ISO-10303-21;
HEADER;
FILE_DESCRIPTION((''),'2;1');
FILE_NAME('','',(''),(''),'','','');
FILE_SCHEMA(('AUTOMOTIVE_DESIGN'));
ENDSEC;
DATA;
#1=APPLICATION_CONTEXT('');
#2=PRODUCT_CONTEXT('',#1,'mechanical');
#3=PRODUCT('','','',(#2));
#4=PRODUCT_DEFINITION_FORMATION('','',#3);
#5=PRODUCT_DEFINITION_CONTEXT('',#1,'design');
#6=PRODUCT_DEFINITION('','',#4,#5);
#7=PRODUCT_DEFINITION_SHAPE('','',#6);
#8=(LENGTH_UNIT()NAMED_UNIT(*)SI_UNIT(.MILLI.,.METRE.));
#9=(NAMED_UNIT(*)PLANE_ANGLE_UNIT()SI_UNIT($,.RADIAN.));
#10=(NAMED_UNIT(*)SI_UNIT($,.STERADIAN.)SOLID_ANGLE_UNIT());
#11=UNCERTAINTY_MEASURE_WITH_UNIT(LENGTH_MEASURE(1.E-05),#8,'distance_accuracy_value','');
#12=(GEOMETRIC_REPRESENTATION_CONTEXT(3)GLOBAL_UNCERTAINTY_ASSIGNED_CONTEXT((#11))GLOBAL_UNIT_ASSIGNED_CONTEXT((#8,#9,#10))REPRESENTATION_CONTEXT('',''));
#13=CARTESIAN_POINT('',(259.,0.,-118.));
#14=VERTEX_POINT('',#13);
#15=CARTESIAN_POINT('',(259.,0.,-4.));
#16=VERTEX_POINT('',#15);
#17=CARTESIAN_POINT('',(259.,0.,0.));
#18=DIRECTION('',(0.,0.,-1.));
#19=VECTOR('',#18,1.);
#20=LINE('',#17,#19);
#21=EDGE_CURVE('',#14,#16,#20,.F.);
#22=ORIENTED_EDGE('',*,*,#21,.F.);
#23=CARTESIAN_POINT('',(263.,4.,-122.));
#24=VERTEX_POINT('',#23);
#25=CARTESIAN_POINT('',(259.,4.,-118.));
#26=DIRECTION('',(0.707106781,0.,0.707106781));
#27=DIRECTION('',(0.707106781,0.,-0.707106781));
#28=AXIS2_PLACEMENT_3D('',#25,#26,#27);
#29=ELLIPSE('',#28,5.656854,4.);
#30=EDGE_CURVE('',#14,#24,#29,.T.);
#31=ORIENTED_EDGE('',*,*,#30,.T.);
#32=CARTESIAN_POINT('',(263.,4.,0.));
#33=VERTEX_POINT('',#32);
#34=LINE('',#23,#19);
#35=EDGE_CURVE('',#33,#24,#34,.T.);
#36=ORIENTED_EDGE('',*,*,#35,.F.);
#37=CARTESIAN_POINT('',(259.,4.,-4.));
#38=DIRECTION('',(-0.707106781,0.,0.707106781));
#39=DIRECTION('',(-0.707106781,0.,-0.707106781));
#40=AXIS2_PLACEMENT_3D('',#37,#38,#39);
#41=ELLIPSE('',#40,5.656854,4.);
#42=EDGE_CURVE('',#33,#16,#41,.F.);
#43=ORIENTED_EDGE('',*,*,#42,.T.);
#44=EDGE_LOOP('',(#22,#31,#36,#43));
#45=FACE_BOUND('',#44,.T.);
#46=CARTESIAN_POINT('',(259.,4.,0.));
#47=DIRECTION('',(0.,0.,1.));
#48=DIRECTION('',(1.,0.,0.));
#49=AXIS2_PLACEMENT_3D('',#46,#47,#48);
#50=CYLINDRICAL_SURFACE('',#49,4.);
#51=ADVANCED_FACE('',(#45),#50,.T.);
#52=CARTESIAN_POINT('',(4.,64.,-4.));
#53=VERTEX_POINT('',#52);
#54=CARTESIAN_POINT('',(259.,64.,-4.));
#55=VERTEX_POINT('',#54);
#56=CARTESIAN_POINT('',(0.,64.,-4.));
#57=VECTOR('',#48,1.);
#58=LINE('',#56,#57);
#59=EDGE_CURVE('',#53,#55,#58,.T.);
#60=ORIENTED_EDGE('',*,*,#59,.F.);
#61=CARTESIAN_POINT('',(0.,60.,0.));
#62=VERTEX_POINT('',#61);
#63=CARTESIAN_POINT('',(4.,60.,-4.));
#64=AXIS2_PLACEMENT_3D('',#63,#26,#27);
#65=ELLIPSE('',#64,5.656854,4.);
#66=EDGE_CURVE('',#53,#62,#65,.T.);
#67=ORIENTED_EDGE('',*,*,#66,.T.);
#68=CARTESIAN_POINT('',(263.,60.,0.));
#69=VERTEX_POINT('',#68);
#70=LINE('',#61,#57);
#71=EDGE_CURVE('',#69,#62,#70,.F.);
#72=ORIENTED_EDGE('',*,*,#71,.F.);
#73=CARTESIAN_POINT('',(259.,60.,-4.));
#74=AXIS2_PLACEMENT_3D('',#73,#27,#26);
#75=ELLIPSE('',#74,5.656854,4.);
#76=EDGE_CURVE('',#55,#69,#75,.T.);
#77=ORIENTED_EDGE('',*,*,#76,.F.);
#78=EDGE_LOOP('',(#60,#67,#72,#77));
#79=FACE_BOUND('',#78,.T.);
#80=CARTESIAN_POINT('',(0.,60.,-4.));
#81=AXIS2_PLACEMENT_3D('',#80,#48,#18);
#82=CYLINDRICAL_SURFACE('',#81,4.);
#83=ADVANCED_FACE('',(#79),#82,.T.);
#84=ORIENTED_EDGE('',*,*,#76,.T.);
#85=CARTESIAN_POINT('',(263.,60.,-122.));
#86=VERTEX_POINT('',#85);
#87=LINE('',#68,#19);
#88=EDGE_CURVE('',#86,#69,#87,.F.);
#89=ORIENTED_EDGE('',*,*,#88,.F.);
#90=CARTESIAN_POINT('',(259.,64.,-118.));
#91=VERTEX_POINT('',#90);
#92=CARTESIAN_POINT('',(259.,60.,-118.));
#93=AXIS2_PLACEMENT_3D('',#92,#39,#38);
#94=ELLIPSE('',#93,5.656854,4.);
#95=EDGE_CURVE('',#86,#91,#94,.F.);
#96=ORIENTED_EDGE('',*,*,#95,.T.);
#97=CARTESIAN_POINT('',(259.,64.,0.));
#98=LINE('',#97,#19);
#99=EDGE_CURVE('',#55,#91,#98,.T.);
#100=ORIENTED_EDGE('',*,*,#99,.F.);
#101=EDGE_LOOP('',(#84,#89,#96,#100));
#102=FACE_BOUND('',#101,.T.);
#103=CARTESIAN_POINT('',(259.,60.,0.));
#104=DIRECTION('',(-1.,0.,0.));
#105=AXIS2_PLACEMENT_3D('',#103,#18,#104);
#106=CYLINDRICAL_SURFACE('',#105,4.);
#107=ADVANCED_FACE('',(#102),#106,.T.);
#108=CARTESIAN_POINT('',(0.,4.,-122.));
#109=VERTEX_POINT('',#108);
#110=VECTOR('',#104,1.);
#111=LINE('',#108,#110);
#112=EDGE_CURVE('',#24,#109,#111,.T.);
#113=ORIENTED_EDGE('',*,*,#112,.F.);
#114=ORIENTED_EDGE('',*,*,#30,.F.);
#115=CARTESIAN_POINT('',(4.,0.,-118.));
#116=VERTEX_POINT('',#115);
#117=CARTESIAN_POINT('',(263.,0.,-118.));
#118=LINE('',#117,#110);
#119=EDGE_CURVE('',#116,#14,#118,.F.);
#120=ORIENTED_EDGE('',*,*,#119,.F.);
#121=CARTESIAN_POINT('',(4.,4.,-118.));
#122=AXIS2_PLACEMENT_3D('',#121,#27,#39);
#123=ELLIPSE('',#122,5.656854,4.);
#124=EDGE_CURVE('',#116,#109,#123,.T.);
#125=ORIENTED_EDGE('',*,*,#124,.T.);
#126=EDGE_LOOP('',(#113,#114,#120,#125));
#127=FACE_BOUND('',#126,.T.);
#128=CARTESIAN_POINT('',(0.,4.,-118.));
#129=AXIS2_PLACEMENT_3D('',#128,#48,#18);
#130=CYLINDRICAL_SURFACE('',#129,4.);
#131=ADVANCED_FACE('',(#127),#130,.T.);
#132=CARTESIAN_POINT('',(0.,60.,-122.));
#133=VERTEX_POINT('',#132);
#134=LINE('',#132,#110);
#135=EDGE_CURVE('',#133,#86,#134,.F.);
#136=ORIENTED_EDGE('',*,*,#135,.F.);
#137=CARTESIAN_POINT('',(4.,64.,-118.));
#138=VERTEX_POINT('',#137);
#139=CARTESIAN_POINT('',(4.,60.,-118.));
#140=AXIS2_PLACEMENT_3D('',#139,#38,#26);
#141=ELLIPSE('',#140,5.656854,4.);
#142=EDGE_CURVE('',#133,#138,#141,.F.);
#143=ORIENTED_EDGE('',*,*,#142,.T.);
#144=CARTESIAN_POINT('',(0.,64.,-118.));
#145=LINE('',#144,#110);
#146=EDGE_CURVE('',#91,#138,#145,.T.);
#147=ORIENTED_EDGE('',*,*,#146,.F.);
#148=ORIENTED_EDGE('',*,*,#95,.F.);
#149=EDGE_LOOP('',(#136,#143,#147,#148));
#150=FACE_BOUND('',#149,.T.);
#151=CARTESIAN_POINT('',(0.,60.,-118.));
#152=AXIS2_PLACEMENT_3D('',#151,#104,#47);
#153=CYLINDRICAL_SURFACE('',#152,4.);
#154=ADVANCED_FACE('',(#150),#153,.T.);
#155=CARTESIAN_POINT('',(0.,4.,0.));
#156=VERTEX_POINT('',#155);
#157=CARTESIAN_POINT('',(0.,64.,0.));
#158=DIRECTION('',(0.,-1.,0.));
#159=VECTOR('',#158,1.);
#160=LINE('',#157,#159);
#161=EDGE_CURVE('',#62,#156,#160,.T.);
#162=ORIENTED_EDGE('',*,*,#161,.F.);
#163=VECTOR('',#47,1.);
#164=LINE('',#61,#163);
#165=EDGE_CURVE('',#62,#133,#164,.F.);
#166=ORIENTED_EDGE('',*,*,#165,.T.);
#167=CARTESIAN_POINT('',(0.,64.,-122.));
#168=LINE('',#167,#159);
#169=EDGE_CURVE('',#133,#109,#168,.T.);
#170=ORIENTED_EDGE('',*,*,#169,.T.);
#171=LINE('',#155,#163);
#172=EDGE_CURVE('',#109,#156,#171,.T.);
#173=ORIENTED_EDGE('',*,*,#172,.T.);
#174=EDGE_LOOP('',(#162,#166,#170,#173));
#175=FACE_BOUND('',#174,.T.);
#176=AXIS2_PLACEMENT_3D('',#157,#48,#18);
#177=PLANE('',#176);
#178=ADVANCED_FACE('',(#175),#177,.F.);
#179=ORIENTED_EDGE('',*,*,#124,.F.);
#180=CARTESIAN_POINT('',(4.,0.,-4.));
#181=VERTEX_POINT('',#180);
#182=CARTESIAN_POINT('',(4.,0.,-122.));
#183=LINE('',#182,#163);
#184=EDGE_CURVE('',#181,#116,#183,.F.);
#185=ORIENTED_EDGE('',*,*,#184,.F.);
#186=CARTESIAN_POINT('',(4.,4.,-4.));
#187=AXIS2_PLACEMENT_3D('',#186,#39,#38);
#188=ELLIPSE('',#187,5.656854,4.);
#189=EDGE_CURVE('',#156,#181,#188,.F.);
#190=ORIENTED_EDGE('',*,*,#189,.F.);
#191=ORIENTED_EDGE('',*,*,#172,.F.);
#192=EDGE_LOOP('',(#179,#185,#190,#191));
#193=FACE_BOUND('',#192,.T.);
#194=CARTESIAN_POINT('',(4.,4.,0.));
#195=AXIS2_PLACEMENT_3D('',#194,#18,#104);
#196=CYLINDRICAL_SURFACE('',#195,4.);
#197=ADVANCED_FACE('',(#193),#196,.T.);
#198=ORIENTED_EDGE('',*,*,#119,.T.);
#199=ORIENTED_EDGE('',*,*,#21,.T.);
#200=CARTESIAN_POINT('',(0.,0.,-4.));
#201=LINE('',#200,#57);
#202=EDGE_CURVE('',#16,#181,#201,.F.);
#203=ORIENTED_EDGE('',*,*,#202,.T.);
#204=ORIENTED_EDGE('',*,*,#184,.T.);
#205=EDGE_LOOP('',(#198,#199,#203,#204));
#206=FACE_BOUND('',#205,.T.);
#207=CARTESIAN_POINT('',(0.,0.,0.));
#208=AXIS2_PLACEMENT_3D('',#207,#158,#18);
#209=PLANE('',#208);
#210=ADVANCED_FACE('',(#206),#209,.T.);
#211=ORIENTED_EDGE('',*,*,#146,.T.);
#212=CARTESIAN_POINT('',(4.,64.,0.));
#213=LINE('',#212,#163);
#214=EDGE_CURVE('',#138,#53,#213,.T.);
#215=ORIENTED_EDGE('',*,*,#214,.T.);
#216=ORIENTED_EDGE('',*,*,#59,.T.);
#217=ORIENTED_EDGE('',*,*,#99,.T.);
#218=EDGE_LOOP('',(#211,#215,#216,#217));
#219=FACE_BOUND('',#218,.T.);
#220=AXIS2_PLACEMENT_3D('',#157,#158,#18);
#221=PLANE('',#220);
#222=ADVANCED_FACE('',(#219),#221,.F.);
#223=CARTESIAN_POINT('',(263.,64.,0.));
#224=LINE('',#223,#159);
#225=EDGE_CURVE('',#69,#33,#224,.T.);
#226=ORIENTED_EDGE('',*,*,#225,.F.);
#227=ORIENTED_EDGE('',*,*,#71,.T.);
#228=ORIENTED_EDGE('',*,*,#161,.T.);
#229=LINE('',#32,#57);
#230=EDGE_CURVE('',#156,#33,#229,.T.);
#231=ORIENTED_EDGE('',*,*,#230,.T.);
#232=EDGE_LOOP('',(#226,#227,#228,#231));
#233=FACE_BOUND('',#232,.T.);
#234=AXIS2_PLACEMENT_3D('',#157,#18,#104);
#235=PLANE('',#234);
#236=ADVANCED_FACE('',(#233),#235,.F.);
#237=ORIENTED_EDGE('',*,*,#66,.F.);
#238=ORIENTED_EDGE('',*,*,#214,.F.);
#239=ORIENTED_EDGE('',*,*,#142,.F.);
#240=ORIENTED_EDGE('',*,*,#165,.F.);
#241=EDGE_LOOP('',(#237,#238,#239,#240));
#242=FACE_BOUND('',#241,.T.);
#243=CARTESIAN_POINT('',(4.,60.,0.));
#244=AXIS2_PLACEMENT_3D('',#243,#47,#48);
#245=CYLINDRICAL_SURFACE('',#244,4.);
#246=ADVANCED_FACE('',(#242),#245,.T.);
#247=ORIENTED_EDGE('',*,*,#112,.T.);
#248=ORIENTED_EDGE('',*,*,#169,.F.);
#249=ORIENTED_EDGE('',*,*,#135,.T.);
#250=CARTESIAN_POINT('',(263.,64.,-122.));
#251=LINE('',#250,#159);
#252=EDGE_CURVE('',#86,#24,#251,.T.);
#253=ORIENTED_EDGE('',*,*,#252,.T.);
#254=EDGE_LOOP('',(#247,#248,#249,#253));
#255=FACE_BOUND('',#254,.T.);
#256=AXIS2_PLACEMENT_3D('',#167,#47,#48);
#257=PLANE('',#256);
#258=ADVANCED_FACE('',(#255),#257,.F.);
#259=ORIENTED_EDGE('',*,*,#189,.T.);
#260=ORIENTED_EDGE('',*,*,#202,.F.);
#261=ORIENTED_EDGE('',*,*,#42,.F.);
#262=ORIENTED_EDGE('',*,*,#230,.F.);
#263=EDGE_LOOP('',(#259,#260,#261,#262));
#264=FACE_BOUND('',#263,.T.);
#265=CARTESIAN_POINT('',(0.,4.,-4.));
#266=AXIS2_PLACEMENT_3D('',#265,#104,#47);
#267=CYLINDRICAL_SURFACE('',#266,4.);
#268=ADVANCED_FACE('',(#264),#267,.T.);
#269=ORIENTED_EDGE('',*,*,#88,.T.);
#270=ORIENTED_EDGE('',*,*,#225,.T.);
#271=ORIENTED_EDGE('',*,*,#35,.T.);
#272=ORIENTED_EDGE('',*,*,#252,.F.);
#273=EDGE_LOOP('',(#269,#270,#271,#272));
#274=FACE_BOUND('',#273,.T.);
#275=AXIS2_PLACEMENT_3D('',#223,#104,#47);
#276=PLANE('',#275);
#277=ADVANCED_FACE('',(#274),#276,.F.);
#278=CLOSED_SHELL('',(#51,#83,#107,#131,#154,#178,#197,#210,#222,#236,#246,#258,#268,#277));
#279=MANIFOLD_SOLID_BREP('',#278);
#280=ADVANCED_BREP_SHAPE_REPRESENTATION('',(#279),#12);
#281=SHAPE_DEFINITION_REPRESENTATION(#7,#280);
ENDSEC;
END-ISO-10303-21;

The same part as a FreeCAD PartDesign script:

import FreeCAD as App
import Part
import Sketcher


def edges_at(feature, points):
    """Names of the edges that pass closest to the given points."""
    edges = feature.Shape.Edges
    near = lambda p: min(range(len(edges)), key=lambda i: edges[i].distToShape(Part.Vertex(*p))[0])
    return sorted({f"Edge{near(p) + 1}" for p in points})

doc = App.newDocument("Part")
params = doc.addObject("Spreadsheet::Sheet", "Params")
for row, (alias, value) in enumerate([
    ("sketch1_width", "263 mm"),
    ("sketch1_height", "122 mm"),
    ("pad1_length", "64 mm"),
    ("fillet_radius", "4 mm"),
], start=1):
    params.set(f"A{row}", alias)
    params.set(f"B{row}", "=" + value)
    params.setAlias(f"B{row}", alias)

body = doc.addObject("PartDesign::Body", "Body")

# Sketch on XZ plane
sketch1 = body.newObject("Sketcher::SketchObject", "Sketch")
sketch1.AttachmentSupport = (doc.getObject("XZ_Plane"), [""])
sketch1.MapMode = "FlatFace"
sketch1.addGeometry([
    Part.LineSegment(App.Vector(0, -122, 0), App.Vector(0, 0, 0)),
    Part.LineSegment(App.Vector(0, 0, 0), App.Vector(263, 0, 0)),
    Part.LineSegment(App.Vector(263, 0, 0), App.Vector(263, -122, 0)),
    Part.LineSegment(App.Vector(263, -122, 0), App.Vector(0, -122, 0)),
], False)
sketch1.addConstraint([
    Sketcher.Constraint("Coincident", 0, 2, 1, 1),
    Sketcher.Constraint("Coincident", 1, 2, 2, 1),
    Sketcher.Constraint("Coincident", 2, 2, 3, 1),
    Sketcher.Constraint("Coincident", 3, 2, 0, 1),
    Sketcher.Constraint("Vertical", 0),
    Sketcher.Constraint("Horizontal", 1),
    Sketcher.Constraint("Vertical", 2),
    Sketcher.Constraint("Horizontal", 3),
    Sketcher.Constraint("Coincident", 0, 2, -1, 1),
    Sketcher.Constraint("DistanceX", 1, 1, 1, 2, 263.0),
    Sketcher.Constraint("DistanceY", 0, 1, 0, 2, 122.0),
])
sketch1.setExpression("Constraints[9]", "Params.sketch1_width")
sketch1.setExpression("Constraints[10]", "Params.sketch1_height")
pad1 = body.newObject("PartDesign::Pad", "Pad")
pad1.Profile = sketch1
pad1.setExpression("Length", "Params.pad1_length")
pad1.Reversed = True
doc.recompute()

fillet = body.newObject("PartDesign::Fillet", "Fillet")
fillet.Base = (pad1, edges_at(pad1, [
    (263, 64, -61),
    (131.5, 64, -122),
    (0, 64, -61),
    (131.5, 0, -122),
    (263, 0, -61),
    (131.5, 0, 0),
    (0, 0, -61),
    (131.5, 64, 0),
]))
fillet.setExpression("Radius", "Params.fillet_radius")

doc.recompute()
